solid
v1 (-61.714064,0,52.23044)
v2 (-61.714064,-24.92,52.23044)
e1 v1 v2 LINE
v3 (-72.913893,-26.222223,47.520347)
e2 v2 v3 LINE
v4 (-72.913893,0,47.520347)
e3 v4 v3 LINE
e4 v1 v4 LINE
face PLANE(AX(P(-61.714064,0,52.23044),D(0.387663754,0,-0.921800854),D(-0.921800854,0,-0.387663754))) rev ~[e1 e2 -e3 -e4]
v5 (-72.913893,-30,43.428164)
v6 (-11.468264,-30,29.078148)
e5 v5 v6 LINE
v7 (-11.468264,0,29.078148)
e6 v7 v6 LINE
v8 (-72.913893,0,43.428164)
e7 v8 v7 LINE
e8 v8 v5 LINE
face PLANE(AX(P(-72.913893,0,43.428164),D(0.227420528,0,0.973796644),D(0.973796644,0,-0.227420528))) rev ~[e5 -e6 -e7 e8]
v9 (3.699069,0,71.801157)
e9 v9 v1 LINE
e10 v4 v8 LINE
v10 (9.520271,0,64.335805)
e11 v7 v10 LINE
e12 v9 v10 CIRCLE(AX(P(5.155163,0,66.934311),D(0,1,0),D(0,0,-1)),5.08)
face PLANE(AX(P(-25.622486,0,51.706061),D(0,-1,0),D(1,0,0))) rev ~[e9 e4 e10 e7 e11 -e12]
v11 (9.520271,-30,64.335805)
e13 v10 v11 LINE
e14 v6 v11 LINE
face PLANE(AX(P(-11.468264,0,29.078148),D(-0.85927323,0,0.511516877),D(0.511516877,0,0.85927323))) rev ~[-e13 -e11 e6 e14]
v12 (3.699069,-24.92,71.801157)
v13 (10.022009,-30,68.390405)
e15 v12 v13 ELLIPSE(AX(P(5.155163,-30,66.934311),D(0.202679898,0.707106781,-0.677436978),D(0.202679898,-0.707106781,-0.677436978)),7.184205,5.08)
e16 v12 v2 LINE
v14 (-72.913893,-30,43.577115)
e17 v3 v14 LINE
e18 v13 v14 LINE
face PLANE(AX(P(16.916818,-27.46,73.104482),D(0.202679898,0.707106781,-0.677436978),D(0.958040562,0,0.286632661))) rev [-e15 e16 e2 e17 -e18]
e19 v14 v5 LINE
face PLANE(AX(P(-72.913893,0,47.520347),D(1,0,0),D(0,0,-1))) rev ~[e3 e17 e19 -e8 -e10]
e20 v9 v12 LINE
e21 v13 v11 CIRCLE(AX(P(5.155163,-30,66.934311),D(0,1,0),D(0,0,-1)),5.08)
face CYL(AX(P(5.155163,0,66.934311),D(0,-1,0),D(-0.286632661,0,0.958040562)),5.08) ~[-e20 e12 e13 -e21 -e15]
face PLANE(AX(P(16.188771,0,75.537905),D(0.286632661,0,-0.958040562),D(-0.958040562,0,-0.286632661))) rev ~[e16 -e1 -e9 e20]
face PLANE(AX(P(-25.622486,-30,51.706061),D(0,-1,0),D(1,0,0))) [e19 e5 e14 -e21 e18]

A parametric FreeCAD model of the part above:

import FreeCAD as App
import Part
import Sketcher
Q = App.Units.Quantity


def edges_at(feature, points):
    """Names of the edges that pass closest to the given points."""
    edges = feature.Shape.Edges
    near = lambda p: min(range(len(edges)), key=lambda i: edges[i].distToShape(Part.Vertex(*p))[0])
    return sorted({f"Edge{near(p) + 1}" for p in points})

doc = App.newDocument("Part")
body = doc.addObject("PartDesign::Body", "Body")

# Sketch on XZ plane
sketch1 = body.newObject("Sketcher::SketchObject", "Sketch")
sketch1.AttachmentSupport = (doc.getObject("XZ_Plane"), [""])
sketch1.MapMode = "FlatFace"
sketch1.addGeometry(Part.LineSegment(App.Vector(-72.9, 47.5, 0), App.Vector(-72.9, 43.4, 0)), False)
sketch1.addGeometry(Part.LineSegment(App.Vector(-72.9, 43.4, 0), App.Vector(-11.5, 29.1, 0)), False)
sketch1.addGeometry(Part.LineSegment(App.Vector(-11.5, 29.1, 0), App.Vector(16.2, 75.5, 0)), False)
sketch1.addGeometry(Part.LineSegment(App.Vector(16.2, 75.5, 0), App.Vector(-61.7, 52.2, 0)), False)
sketch1.addGeometry(Part.LineSegment(App.Vector(-61.7, 52.2, 0), App.Vector(-72.9, 47.5, 0)), False)
sketch1.addConstraint(Sketcher.Constraint("Coincident", 0, 2, 1, 1))
sketch1.addConstraint(Sketcher.Constraint("Coincident", 1, 2, 2, 1))
sketch1.addConstraint(Sketcher.Constraint("Coincident", 2, 2, 3, 1))
sketch1.addConstraint(Sketcher.Constraint("Coincident", 3, 2, 4, 1))
sketch1.addConstraint(Sketcher.Constraint("Coincident", 4, 2, 0, 1))
sketch1.addConstraint(Sketcher.Constraint("Vertical", 0))
sketch1.addConstraint(Sketcher.Constraint("DistanceX", 3, 2, 1, 2, Q("50.2458 mm")))
sketch1.addConstraint(Sketcher.Constraint("DistanceY", 1, 2, 4, 2, Q("18.442199 mm")))
sketch1.addConstraint(Sketcher.Constraint("DistanceY", 0, 2, 0, 1, Q("4.092183 mm")))
sketch1.addConstraint(Sketcher.Constraint("DistanceX", -1, 1, 2, 2, Q("16.188771 mm")))
sketch1.addConstraint(Sketcher.Constraint("DistanceY", -1, 1, 3, 2, Q("52.23044 mm")))
sketch1.addConstraint(Sketcher.Constraint("DistanceX", 0, 2, 1, 2, Q("61.445629 mm")))
sketch1.addConstraint(Sketcher.Constraint("DistanceY", 0, 2, 2, 2, Q("32.109741 mm")))
sketch1.addConstraint(Sketcher.Constraint("Distance", 2, Q("54.068666 mm")))
sketch1.addConstraint(Sketcher.Constraint("Distance", 3, Q("81.314757 mm")))
pad1 = body.newObject("PartDesign::Pad", "Pad")
pad1.Profile = sketch1
pad1.Length = 30
doc.recompute()

chamfer = body.newObject("PartDesign::Chamfer", "Chamfer")
chamfer.Base = (pad1, edges_at(pad1, [(-22.763, -30, 63.884)]))
chamfer.Size = 5.08
doc.recompute()

fillet = body.newObject("PartDesign::Fillet", "Fillet")
fillet.Base = (chamfer, edges_at(chamfer, [(16.189, -12.46, 75.538)]))
fillet.Radius = 5.08

doc.recompute()
